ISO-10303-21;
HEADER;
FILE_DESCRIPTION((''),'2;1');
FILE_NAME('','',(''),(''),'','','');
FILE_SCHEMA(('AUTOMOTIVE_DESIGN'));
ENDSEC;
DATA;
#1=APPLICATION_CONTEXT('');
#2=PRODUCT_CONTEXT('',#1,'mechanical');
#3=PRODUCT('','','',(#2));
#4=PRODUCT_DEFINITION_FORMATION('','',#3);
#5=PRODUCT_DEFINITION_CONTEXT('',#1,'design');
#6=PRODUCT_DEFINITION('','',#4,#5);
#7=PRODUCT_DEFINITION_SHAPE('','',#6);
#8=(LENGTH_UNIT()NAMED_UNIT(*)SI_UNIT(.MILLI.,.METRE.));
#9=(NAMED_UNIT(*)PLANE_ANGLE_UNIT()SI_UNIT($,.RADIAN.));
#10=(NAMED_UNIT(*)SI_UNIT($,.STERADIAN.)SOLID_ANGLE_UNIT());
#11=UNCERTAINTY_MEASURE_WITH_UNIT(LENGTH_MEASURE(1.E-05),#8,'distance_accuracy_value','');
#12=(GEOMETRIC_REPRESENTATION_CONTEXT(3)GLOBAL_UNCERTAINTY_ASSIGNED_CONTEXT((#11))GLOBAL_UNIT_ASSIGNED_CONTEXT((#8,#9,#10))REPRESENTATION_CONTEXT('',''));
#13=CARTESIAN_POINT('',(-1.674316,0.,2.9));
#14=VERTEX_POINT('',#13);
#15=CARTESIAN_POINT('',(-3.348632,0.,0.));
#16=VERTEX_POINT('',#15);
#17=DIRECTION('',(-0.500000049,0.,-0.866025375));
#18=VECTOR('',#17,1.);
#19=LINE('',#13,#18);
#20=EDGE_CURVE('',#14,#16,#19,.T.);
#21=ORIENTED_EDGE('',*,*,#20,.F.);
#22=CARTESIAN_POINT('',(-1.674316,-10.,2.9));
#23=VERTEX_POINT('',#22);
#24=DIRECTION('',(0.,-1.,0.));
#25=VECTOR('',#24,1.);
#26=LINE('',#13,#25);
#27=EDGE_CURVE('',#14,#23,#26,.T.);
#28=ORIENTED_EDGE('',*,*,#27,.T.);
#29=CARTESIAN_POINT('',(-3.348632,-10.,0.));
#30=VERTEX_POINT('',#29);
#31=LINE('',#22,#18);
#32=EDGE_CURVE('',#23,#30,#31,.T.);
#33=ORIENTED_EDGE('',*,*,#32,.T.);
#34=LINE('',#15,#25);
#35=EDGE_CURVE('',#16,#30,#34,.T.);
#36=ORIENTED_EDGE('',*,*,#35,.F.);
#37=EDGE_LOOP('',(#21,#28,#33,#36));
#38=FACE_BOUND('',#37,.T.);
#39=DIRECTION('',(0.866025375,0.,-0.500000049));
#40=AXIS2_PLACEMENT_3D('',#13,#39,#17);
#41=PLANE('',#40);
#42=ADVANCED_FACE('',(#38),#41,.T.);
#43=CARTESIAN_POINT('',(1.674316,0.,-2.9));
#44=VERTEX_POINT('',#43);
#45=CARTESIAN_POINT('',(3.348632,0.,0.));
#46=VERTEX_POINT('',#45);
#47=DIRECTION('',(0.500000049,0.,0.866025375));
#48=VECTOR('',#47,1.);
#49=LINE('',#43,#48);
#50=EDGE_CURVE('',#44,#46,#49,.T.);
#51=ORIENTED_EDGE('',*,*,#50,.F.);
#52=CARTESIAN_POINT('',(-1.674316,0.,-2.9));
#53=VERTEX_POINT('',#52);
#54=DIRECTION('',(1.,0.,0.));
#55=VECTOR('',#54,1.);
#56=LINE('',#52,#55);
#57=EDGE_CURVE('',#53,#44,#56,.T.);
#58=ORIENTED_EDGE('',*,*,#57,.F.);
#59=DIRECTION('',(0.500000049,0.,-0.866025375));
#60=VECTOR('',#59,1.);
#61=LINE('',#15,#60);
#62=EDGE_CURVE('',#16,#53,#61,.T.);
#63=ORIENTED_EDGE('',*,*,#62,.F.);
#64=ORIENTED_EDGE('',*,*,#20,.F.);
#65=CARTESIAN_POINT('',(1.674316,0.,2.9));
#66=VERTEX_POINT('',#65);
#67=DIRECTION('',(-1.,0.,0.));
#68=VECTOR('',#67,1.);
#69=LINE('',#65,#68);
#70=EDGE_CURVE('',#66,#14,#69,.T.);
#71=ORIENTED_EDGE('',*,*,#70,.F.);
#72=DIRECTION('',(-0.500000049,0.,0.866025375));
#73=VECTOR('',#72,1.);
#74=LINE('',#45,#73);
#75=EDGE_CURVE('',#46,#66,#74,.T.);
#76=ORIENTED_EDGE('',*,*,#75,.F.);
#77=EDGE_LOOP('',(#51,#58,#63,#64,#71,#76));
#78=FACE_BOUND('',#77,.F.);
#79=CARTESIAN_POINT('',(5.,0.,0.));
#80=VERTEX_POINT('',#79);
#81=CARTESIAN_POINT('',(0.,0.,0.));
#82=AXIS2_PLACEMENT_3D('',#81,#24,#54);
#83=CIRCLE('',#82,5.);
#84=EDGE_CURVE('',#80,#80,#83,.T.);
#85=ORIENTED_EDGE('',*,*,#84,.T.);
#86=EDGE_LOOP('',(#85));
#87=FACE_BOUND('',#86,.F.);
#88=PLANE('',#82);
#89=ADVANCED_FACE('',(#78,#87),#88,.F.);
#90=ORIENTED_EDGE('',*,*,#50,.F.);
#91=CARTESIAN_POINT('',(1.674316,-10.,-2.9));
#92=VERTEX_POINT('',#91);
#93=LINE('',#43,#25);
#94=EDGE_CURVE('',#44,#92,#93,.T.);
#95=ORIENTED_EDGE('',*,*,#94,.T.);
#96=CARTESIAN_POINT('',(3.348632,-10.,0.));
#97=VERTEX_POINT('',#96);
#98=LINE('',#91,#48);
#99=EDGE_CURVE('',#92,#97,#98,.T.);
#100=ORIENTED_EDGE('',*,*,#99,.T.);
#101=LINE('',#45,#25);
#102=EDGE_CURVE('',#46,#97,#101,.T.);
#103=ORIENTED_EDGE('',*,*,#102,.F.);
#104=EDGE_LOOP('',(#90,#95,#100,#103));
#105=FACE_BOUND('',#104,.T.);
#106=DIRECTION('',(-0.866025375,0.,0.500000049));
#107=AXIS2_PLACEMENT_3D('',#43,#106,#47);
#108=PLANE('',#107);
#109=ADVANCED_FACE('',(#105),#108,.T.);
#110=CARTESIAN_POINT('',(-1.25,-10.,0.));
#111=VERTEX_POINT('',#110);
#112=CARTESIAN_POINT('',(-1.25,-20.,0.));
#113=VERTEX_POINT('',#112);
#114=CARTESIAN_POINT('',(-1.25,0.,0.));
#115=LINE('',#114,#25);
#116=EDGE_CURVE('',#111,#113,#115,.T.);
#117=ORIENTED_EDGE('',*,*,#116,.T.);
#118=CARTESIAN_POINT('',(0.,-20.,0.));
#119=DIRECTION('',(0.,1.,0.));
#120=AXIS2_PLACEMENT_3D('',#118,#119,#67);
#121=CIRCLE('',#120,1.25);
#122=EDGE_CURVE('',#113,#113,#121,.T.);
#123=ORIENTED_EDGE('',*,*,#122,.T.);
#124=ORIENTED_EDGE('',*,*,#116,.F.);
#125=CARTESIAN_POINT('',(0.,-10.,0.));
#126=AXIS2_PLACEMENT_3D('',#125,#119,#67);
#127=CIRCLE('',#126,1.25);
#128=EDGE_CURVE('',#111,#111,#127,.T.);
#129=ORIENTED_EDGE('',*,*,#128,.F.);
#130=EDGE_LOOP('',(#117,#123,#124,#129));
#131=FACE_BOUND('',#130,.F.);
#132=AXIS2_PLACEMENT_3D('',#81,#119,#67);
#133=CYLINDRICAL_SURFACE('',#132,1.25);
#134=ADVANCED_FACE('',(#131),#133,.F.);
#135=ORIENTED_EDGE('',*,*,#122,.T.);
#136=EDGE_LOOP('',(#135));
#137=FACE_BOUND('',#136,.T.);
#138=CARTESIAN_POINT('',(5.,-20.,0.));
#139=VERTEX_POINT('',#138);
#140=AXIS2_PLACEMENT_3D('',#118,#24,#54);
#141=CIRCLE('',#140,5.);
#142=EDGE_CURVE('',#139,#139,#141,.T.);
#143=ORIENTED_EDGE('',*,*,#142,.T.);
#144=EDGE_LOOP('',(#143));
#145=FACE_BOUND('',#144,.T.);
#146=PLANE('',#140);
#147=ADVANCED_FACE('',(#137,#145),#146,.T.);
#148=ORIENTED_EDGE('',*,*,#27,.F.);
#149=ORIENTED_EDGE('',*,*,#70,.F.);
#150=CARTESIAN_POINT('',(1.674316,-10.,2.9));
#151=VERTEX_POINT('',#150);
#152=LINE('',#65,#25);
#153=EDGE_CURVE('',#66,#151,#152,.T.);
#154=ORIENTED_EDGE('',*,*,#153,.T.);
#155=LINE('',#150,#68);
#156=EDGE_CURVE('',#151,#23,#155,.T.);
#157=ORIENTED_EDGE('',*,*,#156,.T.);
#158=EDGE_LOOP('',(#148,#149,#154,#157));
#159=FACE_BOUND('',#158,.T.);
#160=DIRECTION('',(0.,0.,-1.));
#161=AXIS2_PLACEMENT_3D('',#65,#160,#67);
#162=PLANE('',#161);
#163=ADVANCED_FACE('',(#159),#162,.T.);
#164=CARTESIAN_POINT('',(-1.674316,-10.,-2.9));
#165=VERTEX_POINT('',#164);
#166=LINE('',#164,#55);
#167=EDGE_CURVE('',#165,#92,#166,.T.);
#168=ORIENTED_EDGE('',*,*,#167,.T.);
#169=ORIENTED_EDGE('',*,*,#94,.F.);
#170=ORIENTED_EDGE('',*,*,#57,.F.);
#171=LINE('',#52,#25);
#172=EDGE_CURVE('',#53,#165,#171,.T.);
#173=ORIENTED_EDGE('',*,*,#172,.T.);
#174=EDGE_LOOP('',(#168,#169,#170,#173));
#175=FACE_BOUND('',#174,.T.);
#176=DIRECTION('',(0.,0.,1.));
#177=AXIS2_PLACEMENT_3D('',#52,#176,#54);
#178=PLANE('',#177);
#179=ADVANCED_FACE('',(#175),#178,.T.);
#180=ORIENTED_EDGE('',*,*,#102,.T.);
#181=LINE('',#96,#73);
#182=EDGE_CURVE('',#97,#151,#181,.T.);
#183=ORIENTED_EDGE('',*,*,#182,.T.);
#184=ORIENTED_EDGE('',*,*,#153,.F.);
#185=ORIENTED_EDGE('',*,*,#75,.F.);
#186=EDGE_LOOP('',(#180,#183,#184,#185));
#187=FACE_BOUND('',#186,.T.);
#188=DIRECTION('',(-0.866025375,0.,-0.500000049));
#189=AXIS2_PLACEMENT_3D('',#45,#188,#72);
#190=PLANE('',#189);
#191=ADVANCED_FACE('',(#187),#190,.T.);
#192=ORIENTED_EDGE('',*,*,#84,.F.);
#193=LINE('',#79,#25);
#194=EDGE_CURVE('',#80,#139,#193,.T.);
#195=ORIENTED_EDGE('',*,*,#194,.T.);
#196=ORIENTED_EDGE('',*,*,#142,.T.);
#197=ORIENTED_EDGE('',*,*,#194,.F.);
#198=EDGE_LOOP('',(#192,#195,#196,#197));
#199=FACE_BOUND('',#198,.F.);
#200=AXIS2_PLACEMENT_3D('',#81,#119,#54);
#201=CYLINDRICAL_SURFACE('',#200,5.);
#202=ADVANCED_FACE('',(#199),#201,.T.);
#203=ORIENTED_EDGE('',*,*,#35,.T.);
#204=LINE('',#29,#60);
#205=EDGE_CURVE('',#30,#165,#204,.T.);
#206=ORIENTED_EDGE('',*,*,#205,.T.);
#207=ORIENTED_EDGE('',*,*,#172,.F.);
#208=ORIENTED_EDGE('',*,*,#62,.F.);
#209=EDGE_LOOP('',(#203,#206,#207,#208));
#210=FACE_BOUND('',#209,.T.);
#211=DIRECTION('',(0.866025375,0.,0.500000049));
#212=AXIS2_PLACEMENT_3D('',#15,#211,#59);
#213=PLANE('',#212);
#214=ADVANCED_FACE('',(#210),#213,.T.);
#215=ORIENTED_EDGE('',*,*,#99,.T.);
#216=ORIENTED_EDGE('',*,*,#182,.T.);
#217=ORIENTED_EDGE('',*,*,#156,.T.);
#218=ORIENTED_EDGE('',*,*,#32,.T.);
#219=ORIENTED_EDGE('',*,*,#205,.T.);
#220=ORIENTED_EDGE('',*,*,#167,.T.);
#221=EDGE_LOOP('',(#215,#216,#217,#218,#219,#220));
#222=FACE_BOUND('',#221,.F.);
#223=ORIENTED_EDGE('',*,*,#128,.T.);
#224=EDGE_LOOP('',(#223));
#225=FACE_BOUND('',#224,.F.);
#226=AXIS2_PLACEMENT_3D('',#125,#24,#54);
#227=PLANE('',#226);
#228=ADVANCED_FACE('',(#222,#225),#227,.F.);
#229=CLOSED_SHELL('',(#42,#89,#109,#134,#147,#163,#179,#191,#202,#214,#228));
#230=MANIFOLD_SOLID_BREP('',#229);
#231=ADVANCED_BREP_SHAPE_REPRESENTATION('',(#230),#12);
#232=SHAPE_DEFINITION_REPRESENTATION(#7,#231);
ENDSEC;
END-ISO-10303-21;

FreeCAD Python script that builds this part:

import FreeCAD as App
import Part
import Sketcher
from FreeCAD import Vector
Q = App.Units.Quantity

doc = App.newDocument("Part")
body = doc.addObject("PartDesign::Body", "Body")

sketch1 = body.newObject("Sketcher::SketchObject", "Sketch")
sketch1.AttachmentSupport = (doc.getObject("XZ_Plane"), [""])
sketch1.MapMode = "FlatFace"
sketch1.addGeometry(Part.Circle(Vector(0, 0, 0), Vector(0, 0, 1), 5), False)
sketch1.addConstraint(Sketcher.Constraint("Coincident", 0, 3, -1, 1))
sketch1.addConstraint(Sketcher.Constraint("Diameter", 0, Q("10 mm")))
pad1 = body.newObject("PartDesign::Pad", "Pad")
pad1.Profile = sketch1
pad1.Length = 20

sketch2 = body.newObject("Sketcher::SketchObject", "Sketch001")
sketch2.AttachmentSupport = (doc.getObject("XZ_Plane"), [""])
sketch2.MapMode = "FlatFace"
sketch2.addGeometry(Part.Circle(Vector(0, 0, 0), Vector(0, 0, 1), 1.25), False)
sketch2.addConstraint(Sketcher.Constraint("Coincident", 0, 3, -1, 1))
sketch2.addConstraint(Sketcher.Constraint("Diameter", 0, Q("2.5 mm")))
pocket1 = body.newObject("PartDesign::Pocket", "Pocket")
pocket1.Profile = sketch2
pocket1.Type = "ThroughAll"
pocket1.Reversed = True

sketch3 = body.newObject("Sketcher::SketchObject", "Sketch002")
sketch3.AttachmentSupport = (doc.getObject("XZ_Plane"), [""])
sketch3.MapMode = "FlatFace"
sketch3.addGeometry(Part.LineSegment(Vector(1.674316, 2.9, 0), Vector(-1.674316, 2.9, 0)), False)
sketch3.addGeometry(Part.LineSegment(Vector(-1.674316, 2.9, 0), Vector(-3.348632, 0, 0)), False)
sketch3.addGeometry(Part.LineSegment(Vector(-3.348632, 0, 0), Vector(-1.674316, -2.9, 0)), False)
sketch3.addGeometry(Part.LineSegment(Vector(-1.674316, -2.9, 0), Vector(1.674316, -2.9, 0)), False)
sketch3.addGeometry(Part.LineSegment(Vector(1.674316, -2.9, 0), Vector(3.348632, 0, 0)), False)
sketch3.addGeometry(Part.LineSegment(Vector(3.348632, 0, 0), Vector(1.674316, 2.9, 0)), False)
sketch3.addConstraint(Sketcher.Constraint("Coincident", 0, 2, 1, 1))
sketch3.addConstraint(Sketcher.Constraint("Coincident", 1, 2, 2, 1))
sketch3.addConstraint(Sketcher.Constraint("Coincident", 2, 2, 3, 1))
sketch3.addConstraint(Sketcher.Constraint("Coincident", 3, 2, 4, 1))
sketch3.addConstraint(Sketcher.Constraint("Coincident", 4, 2, 5, 1))
sketch3.addConstraint(Sketcher.Constraint("Coincident", 5, 2, 0, 1))
sketch3.addConstraint(Sketcher.Constraint("Horizontal", 0))
sketch3.addConstraint(Sketcher.Constraint("Horizontal", 3))
sketch3.addConstraint(Sketcher.Constraint("Symmetric", 0, 2, 3, 2, -1, 1))
sketch3.addConstraint(Sketcher.Constraint("Symmetric", 1, 2, 4, 2, -1, 1))
sketch3.addConstraint(Sketcher.Constraint("PointOnObject", 1, 2, -1))
sketch3.addConstraint(Sketcher.Constraint("Parallel", 2, 5))
sketch3.addConstraint(Sketcher.Constraint("Vertical", 0, 2, 2, 2))
sketch3.addConstraint(Sketcher.Constraint("Angle", 1, Q("-120.000003 deg")))
sketch3.addConstraint(Sketcher.Constraint("DistanceY", -1, 1, 0, 2, Q("2.9 mm")))
sketch3.addConstraint(Sketcher.Constraint("DistanceX", 0, 2, 0, 1, Q("3.348632 mm")))
pocket2 = body.newObject("PartDesign::Pocket", "Pocket001")
pocket2.Profile = sketch3
pocket2.Length = 10
pocket2.Reversed = True

doc.recompute()
